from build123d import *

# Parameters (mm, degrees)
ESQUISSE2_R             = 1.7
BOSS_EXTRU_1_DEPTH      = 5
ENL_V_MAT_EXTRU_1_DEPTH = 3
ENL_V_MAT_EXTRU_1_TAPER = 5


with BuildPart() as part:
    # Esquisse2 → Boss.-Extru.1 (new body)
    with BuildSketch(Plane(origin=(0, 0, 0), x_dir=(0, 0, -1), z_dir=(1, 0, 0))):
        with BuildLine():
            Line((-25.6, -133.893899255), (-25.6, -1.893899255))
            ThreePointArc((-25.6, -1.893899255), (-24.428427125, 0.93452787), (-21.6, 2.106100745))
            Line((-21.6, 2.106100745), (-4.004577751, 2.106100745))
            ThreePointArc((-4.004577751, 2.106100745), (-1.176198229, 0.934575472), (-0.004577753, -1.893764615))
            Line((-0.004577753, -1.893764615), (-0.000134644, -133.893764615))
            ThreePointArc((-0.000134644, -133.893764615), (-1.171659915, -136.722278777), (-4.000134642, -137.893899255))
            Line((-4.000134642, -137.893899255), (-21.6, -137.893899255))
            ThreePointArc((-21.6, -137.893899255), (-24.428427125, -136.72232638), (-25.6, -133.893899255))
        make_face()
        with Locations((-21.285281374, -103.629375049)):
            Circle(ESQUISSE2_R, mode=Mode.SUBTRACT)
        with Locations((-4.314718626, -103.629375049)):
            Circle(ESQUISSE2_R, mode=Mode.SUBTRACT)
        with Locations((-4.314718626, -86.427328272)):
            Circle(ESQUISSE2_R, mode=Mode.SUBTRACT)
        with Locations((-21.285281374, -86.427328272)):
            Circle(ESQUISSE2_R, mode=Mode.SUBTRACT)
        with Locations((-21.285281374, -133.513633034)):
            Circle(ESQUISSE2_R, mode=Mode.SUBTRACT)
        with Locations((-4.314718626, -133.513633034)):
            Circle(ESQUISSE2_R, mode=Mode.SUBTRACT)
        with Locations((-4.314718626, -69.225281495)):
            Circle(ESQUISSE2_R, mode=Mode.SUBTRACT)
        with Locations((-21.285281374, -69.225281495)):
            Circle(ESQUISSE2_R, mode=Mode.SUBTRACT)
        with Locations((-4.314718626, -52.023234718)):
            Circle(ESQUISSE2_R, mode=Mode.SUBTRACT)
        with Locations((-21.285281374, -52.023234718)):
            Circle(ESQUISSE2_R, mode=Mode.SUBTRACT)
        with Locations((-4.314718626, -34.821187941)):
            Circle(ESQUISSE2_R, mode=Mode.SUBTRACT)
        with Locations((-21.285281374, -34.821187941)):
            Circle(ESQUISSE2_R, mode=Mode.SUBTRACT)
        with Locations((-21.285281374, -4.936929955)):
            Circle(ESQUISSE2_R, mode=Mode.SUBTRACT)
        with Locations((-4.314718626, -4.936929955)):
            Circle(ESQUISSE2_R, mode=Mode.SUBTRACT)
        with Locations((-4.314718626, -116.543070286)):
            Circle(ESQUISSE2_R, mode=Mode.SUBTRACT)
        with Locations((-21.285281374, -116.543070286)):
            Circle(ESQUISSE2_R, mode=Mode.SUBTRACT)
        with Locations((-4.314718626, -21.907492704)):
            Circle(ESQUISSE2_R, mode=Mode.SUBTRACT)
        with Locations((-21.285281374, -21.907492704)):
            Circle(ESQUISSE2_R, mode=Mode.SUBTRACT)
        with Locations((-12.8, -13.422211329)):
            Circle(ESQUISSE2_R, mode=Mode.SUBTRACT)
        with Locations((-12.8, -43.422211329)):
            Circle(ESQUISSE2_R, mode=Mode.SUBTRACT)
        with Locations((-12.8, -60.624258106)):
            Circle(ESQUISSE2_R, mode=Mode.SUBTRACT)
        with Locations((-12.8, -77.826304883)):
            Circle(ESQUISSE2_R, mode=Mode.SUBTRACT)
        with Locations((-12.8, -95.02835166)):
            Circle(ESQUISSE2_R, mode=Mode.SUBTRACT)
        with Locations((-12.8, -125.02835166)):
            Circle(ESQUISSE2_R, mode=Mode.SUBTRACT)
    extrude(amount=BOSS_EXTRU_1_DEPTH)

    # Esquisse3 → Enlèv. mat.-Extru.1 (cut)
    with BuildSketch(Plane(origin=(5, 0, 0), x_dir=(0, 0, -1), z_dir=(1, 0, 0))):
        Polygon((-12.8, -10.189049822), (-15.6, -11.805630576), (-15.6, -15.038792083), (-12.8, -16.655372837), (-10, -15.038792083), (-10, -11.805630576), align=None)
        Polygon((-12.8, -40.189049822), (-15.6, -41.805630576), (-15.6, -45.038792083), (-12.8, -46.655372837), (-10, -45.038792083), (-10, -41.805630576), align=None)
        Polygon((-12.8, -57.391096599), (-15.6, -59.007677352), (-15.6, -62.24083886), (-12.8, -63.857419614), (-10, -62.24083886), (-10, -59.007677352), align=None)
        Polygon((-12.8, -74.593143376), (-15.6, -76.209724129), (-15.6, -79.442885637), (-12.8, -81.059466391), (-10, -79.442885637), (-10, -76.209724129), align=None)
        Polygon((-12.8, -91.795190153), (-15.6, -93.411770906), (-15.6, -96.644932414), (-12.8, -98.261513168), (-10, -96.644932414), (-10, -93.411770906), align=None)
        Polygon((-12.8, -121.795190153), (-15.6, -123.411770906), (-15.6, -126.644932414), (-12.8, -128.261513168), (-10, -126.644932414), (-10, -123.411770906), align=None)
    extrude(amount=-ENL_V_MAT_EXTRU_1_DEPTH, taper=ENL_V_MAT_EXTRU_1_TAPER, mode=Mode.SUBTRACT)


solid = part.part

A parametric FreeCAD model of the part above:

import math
import FreeCAD as App
import Part
import Sketcher

V = App.Vector
Q = App.Units.Quantity

doc = App.newDocument("Part")
params = doc.addObject("Spreadsheet::Sheet", "Params")
for row, (alias, value) in enumerate([
    ("sketch1_radius", "4 mm"),
    ("sketch1_diameter", "3.4 mm"),
    ("sketch1_width", "132 mm"),
    ("pad1_length", "5 mm"),
    ("pocket1_length", "3 mm"),
    ("pocket1_taper", "-5 deg"),
], start=1):
    params.set(f"A{row}", alias)
    params.set(f"B{row}", "=" + value)
    params.setAlias(f"B{row}", alias)

body = doc.addObject("PartDesign::Body", "Body")

# Sketch on YZ plane
sketch1 = doc.addObject("Sketcher::SketchObject", "Sketch")
body.addObject(sketch1)
sketch1.AttachmentSupport = (doc.YZ_Plane, [""])
sketch1.MapMode = "FlatFace"
sketch1.addGeometry([
    Part.LineSegment(V(-1.9, 25.6, 0), V(-133.9, 25.6, 0)),  # 0
    Part.ArcOfCircle(Part.Circle(V(-133.9, 21.6, 0), V(0, 0, 1), 4), math.radians(90), math.radians(180)),  # 1
    Part.LineSegment(V(-137.9, 21.6, 0), V(-137.9, 4, 0)),  # 2
    Part.ArcOfCircle(Part.Circle(V(-133.9, 4, 0), V(0, 0, 1), 4), math.radians(180), math.radians(270)),  # 3
    Part.LineSegment(V(-133.9, 0, 0), V(-1.9, 0, 0)),  # 4
    Part.ArcOfCircle(Part.Circle(V(-1.9, 4, 0), V(0, 0, 1), 4), math.radians(-90), math.radians(0)),  # 5
    Part.LineSegment(V(2.1, 4, 0), V(2.1, 21.6, 0)),  # 6
    Part.ArcOfCircle(Part.Circle(V(-1.9, 21.6, 0), V(0, 0, 1), 4), math.radians(0), math.radians(90)),  # 7
    Part.Circle(V(-133.5, 4.3, 0), V(0, 0, 1), 1.7),  # 8
    Part.Circle(V(-116.5, 4.3, 0), V(0, 0, 1), 1.7),  # 9
    Part.Circle(V(-103.6, 4.3, 0), V(0, 0, 1), 1.7),  # 10
    Part.Circle(V(-86.4, 4.3, 0), V(0, 0, 1), 1.7),  # 11
    Part.Circle(V(-69.2, 4.3, 0), V(0, 0, 1), 1.7),  # 12
    Part.Circle(V(-125, 12.8, 0), V(0, 0, 1), 1.7),  # 13
    Part.Circle(V(-133.5, 21.3, 0), V(0, 0, 1), 1.7),  # 14
    Part.Circle(V(-116.5, 21.3, 0), V(0, 0, 1), 1.7),  # 15
    Part.Circle(V(-103.6, 21.3, 0), V(0, 0, 1), 1.7),  # 16
    Part.Circle(V(-95, 12.8, 0), V(0, 0, 1), 1.7),  # 17
    Part.Circle(V(-77.8, 12.8, 0), V(0, 0, 1), 1.7),  # 18
    Part.Circle(V(-86.4, 21.3, 0), V(0, 0, 1), 1.7),  # 19
    Part.Circle(V(-69.2, 21.3, 0), V(0, 0, 1), 1.7),  # 20
    Part.Circle(V(-52, 4.3, 0), V(0, 0, 1), 1.7),  # 21
    Part.Circle(V(-34.8, 4.3, 0), V(0, 0, 1), 1.7),  # 22
    Part.Circle(V(-21.9, 4.3, 0), V(0, 0, 1), 1.7),  # 23
    Part.Circle(V(-4.9, 4.3, 0), V(0, 0, 1), 1.7),  # 24
    Part.Circle(V(-60.6, 12.8, 0), V(0, 0, 1), 1.7),  # 25
    Part.Circle(V(-43.4, 12.8, 0), V(0, 0, 1), 1.7),  # 26
    Part.Circle(V(-52, 21.3, 0), V(0, 0, 1), 1.7),  # 27
    Part.Circle(V(-13.4, 12.8, 0), V(0, 0, 1), 1.7),  # 28
    Part.Circle(V(-34.8, 21.3, 0), V(0, 0, 1), 1.7),  # 29
    Part.Circle(V(-21.9, 21.3, 0), V(0, 0, 1), 1.7),  # 30
    Part.Circle(V(-4.9, 21.3, 0), V(0, 0, 1), 1.7),  # 31
], False)
sketch1.addConstraint([
    Sketcher.Constraint("Tangent", 0, 2, 1, 1),
    Sketcher.Constraint("Tangent", 1, 2, 2, 1),
    Sketcher.Constraint("Tangent", 2, 2, 3, 1),
    Sketcher.Constraint("Tangent", 3, 2, 4, 1),
    Sketcher.Constraint("Tangent", 4, 2, 5, 1),
    Sketcher.Constraint("Tangent", 5, 2, 6, 1),
    Sketcher.Constraint("Tangent", 6, 2, 7, 1),
    Sketcher.Constraint("Tangent", 7, 2, 0, 1),
    Sketcher.Constraint("Horizontal", 0),
    Sketcher.Constraint("Vertical", 2),
    Sketcher.Constraint("Vertical", 6),
    Sketcher.Constraint("Equal", 1, 3),
    Sketcher.Constraint("Equal", 3, 5),
    Sketcher.Constraint("Equal", 5, 7),
    Sketcher.Constraint("Equal", 8, 9),
    Sketcher.Constraint("Equal", 9, 10),
    Sketcher.Constraint("Equal", 10, 11),
    Sketcher.Constraint("Equal", 11, 12),
    Sketcher.Constraint("Equal", 12, 13),
    Sketcher.Constraint("Equal", 13, 14),
    Sketcher.Constraint("Equal", 14, 15),
    Sketcher.Constraint("Equal", 15, 16),
    Sketcher.Constraint("Equal", 16, 17),
    Sketcher.Constraint("Equal", 17, 18),
    Sketcher.Constraint("Equal", 18, 19),
    Sketcher.Constraint("Equal", 19, 20),
    Sketcher.Constraint("Equal", 20, 21),
    Sketcher.Constraint("Equal", 21, 22),
    Sketcher.Constraint("Equal", 22, 23),
    Sketcher.Constraint("Equal", 23, 24),
    Sketcher.Constraint("Equal", 24, 25),
    Sketcher.Constraint("Equal", 25, 26),
    Sketcher.Constraint("Equal", 26, 27),
    Sketcher.Constraint("Equal", 27, 28),
    Sketcher.Constraint("Equal", 28, 29),
    Sketcher.Constraint("Equal", 29, 30),
    Sketcher.Constraint("Equal", 30, 31),
    Sketcher.Constraint("Horizontal", 8, 3, 9, 3),
    Sketcher.Constraint("Horizontal", 9, 3, 10, 3),
    Sketcher.Constraint("Horizontal", 10, 3, 11, 3),
    Sketcher.Constraint("Horizontal", 11, 3, 12, 3),
    Sketcher.Constraint("Horizontal", 14, 3, 15, 3),
    Sketcher.Constraint("Horizontal", 15, 3, 16, 3),
    Sketcher.Constraint("Horizontal", 13, 3, 17, 3),
    Sketcher.Constraint("Horizontal", 17, 3, 18, 3),
    Sketcher.Constraint("Horizontal", 16, 3, 19, 3),
    Sketcher.Constraint("Horizontal", 19, 3, 20, 3),
    Sketcher.Constraint("Horizontal", 12, 3, 21, 3),
    Sketcher.Constraint("Horizontal", 21, 3, 22, 3),
    Sketcher.Constraint("Horizontal", 22, 3, 23, 3),
    Sketcher.Constraint("Horizontal", 23, 3, 24, 3),
    Sketcher.Constraint("Horizontal", 18, 3, 25, 3),
    Sketcher.Constraint("Horizontal", 25, 3, 26, 3),
    Sketcher.Constraint("Horizontal", 20, 3, 27, 3),
    Sketcher.Constraint("Horizontal", 26, 3, 28, 3),
    Sketcher.Constraint("Horizontal", 27, 3, 29, 3),
    Sketcher.Constraint("Horizontal", 29, 3, 30, 3),
    Sketcher.Constraint("Horizontal", 30, 3, 31, 3),
    Sketcher.Constraint("Vertical", 8, 3, 14, 3),
    Sketcher.Constraint("Vertical", 9, 3, 15, 3),
    Sketcher.Constraint("Vertical", 10, 3, 16, 3),
    Sketcher.Constraint("Vertical", 11, 3, 19, 3),
    Sketcher.Constraint("Vertical", 12, 3, 20, 3),
    Sketcher.Constraint("Vertical", 21, 3, 27, 3),
    Sketcher.Constraint("Vertical", 22, 3, 29, 3),
    Sketcher.Constraint("Vertical", 23, 3, 30, 3),
    Sketcher.Constraint("Vertical", 24, 3, 31, 3),
    Sketcher.Constraint("Radius", 1, Q("4 mm")),
    Sketcher.Constraint("Diameter", 8, Q("3.4 mm")),
    Sketcher.Constraint("DistanceX", 0, 2, 0, 1, Q("132 mm")),
    Sketcher.Constraint("DistanceY", -1, 1, 1, 3, Q("21.6 mm")),
    Sketcher.Constraint("DistanceY", -1, 1, 13, 3, Q("12.8 mm")),
    Sketcher.Constraint("DistanceX", 1, 3, -1, 1, Q("133.893899 mm")),
    Sketcher.Constraint("DistanceY", 2, 2, 2, 1, Q("17.599865 mm")),
    Sketcher.Constraint("DistanceY", 6, 1, 6, 2, Q("17.595422 mm")),
    Sketcher.Constraint("DistanceY", -1, 1, 8, 3, Q("4.314719 mm")),
    Sketcher.Constraint("DistanceX", 9, 3, -1, 1, Q("116.54307 mm")),
    Sketcher.Constraint("DistanceX", 11, 3, -1, 1, Q("86.427328 mm")),
    Sketcher.Constraint("DistanceX", 12, 3, -1, 1, Q("69.225281 mm")),
    Sketcher.Constraint("DistanceX", 13, 3, -1, 1, Q("125.028352 mm")),
    Sketcher.Constraint("DistanceY", -1, 1, 14, 3, Q("21.285281 mm")),
    Sketcher.Constraint("DistanceX", 17, 3, -1, 1, Q("95.028352 mm")),
    Sketcher.Constraint("DistanceX", 24, 3, -1, 1, Q("4.93693 mm")),
    Sketcher.Constraint("DistanceX", 25, 3, -1, 1, Q("60.624258 mm")),
    Sketcher.Constraint("DistanceX", 26, 3, -1, 1, Q("43.422211 mm")),
    Sketcher.Constraint("DistanceX", 28, 3, -1, 1, Q("13.422211 mm")),
    Sketcher.Constraint("DistanceX", 8, 3, 12, 3, Q("64.288352 mm")),
    Sketcher.Constraint("DistanceX", 10, 3, 18, 3, Q("25.80307 mm")),
    Sketcher.Constraint("DistanceX", 18, 3, 21, 3, Q("25.80307 mm")),
    Sketcher.Constraint("DistanceX", 22, 3, 5, 3, Q("32.927289 mm")),
    Sketcher.Constraint("DistanceX", 12, 3, 23, 3, Q("47.317789 mm")),
    Sketcher.Constraint("DistanceX", 10, 3, -1, 1, Q("103.629375 mm")),
])
sketch1.setExpression("Constraints[67]", "Params.sketch1_radius")
sketch1.setExpression("Constraints[68]", "Params.sketch1_diameter")
sketch1.setExpression("Constraints[69]", "Params.sketch1_width")
pad1 = doc.addObject("PartDesign::Pad", "Pad")
body.addObject(pad1)
pad1.Profile = sketch1
pad1.setExpression("Length", "Params.pad1_length")

# Sketch on YZ plane
sketch2 = doc.addObject("Sketcher::SketchObject", "Sketch001")
body.addObject(sketch2)
sketch2.AttachmentSupport = (doc.YZ_Plane, [""])
sketch2.MapMode = "FlatFace"
sketch2.AttachmentOffset = App.Placement(V(0, 0, 5), App.Rotation())
sketch2.addGeometry([
    Part.LineSegment(V(-10.2, 12.8, 0), V(-11.8, 15.6, 0)),  # 0
    Part.LineSegment(V(-11.8, 15.6, 0), V(-15, 15.6, 0)),  # 1
    Part.LineSegment(V(-15, 15.6, 0), V(-16.7, 12.8, 0)),  # 2
    Part.LineSegment(V(-16.7, 12.8, 0), V(-15, 10, 0)),  # 3
    Part.LineSegment(V(-15, 10, 0), V(-11.8, 10, 0)),  # 4
    Part.LineSegment(V(-11.8, 10, 0), V(-10.2, 12.8, 0)),  # 5
    Part.LineSegment(V(-40.2, 12.8, 0), V(-41.8, 15.6, 0)),  # 6
    Part.LineSegment(V(-41.8, 15.6, 0), V(-45, 15.6, 0)),  # 7
    Part.LineSegment(V(-45, 15.6, 0), V(-46.7, 12.8, 0)),  # 8
    Part.LineSegment(V(-46.7, 12.8, 0), V(-45, 10, 0)),  # 9
    Part.LineSegment(V(-45, 10, 0), V(-41.8, 10, 0)),  # 10
    Part.LineSegment(V(-41.8, 10, 0), V(-40.2, 12.8, 0)),  # 11
    Part.LineSegment(V(-57.4, 12.8, 0), V(-59, 15.6, 0)),  # 12
    Part.LineSegment(V(-59, 15.6, 0), V(-62.2, 15.6, 0)),  # 13
    Part.LineSegment(V(-62.2, 15.6, 0), V(-63.9, 12.8, 0)),  # 14
    Part.LineSegment(V(-63.9, 12.8, 0), V(-62.2, 10, 0)),  # 15
    Part.LineSegment(V(-62.2, 10, 0), V(-59, 10, 0)),  # 16
    Part.LineSegment(V(-59, 10, 0), V(-57.4, 12.8, 0)),  # 17
    Part.LineSegment(V(-74.6, 12.8, 0), V(-76.2, 15.6, 0)),  # 18
    Part.LineSegment(V(-76.2, 15.6, 0), V(-79.4, 15.6, 0)),  # 19
    Part.LineSegment(V(-79.4, 15.6, 0), V(-81.1, 12.8, 0)),  # 20
    Part.LineSegment(V(-81.1, 12.8, 0), V(-79.4, 10, 0)),  # 21
    Part.LineSegment(V(-79.4, 10, 0), V(-76.2, 10, 0)),  # 22
    Part.LineSegment(V(-76.2, 10, 0), V(-74.6, 12.8, 0)),  # 23
    Part.LineSegment(V(-91.8, 12.8, 0), V(-93.4, 15.6, 0)),  # 24
    Part.LineSegment(V(-93.4, 15.6, 0), V(-96.6, 15.6, 0)),  # 25
    Part.LineSegment(V(-96.6, 15.6, 0), V(-98.3, 12.8, 0)),  # 26
    Part.LineSegment(V(-98.3, 12.8, 0), V(-96.6, 10, 0)),  # 27
    Part.LineSegment(V(-96.6, 10, 0), V(-93.4, 10, 0)),  # 28
    Part.LineSegment(V(-93.4, 10, 0), V(-91.8, 12.8, 0)),  # 29
    Part.LineSegment(V(-121.8, 12.8, 0), V(-123.4, 15.6, 0)),  # 30
    Part.LineSegment(V(-123.4, 15.6, 0), V(-126.6, 15.6, 0)),  # 31
    Part.LineSegment(V(-126.6, 15.6, 0), V(-128.3, 12.8, 0)),  # 32
    Part.LineSegment(V(-128.3, 12.8, 0), V(-126.6, 10, 0)),  # 33
    Part.LineSegment(V(-126.6, 10, 0), V(-123.4, 10, 0)),  # 34
    Part.LineSegment(V(-123.4, 10, 0), V(-121.8, 12.8, 0)),  # 35
], False)
sketch2.addConstraint([
    Sketcher.Constraint("Coincident", 0, 2, 1, 1),
    Sketcher.Constraint("Coincident", 1, 2, 2, 1),
    Sketcher.Constraint("Coincident", 2, 2, 3, 1),
    Sketcher.Constraint("Coincident", 3, 2, 4, 1),
    Sketcher.Constraint("Coincident", 4, 2, 5, 1),
    Sketcher.Constraint("Coincident", 5, 2, 0, 1),
    Sketcher.Constraint("Coincident", 6, 2, 7, 1),
    Sketcher.Constraint("Coincident", 7, 2, 8, 1),
    Sketcher.Constraint("Coincident", 8, 2, 9, 1),
    Sketcher.Constraint("Coincident", 9, 2, 10, 1),
    Sketcher.Constraint("Coincident", 10, 2, 11, 1),
    Sketcher.Constraint("Coincident", 11, 2, 6, 1),
    Sketcher.Constraint("Coincident", 12, 2, 13, 1),
    Sketcher.Constraint("Coincident", 13, 2, 14, 1),
    Sketcher.Constraint("Coincident", 14, 2, 15, 1),
    Sketcher.Constraint("Coincident", 15, 2, 16, 1),
    Sketcher.Constraint("Coincident", 16, 2, 17, 1),
    Sketcher.Constraint("Coincident", 17, 2, 12, 1),
    Sketcher.Constraint("Coincident", 18, 2, 19, 1),
    Sketcher.Constraint("Coincident", 19, 2, 20, 1),
    Sketcher.Constraint("Coincident", 20, 2, 21, 1),
    Sketcher.Constraint("Coincident", 21, 2, 22, 1),
    Sketcher.Constraint("Coincident", 22, 2, 23, 1),
    Sketcher.Constraint("Coincident", 23, 2, 18, 1),
    Sketcher.Constraint("Coincident", 24, 2, 25, 1),
    Sketcher.Constraint("Coincident", 25, 2, 26, 1),
    Sketcher.Constraint("Coincident", 26, 2, 27, 1),
    Sketcher.Constraint("Coincident", 27, 2, 28, 1),
    Sketcher.Constraint("Coincident", 28, 2, 29, 1),
    Sketcher.Constraint("Coincident", 29, 2, 24, 1),
    Sketcher.Constraint("Coincident", 30, 2, 31, 1),
    Sketcher.Constraint("Coincident", 31, 2, 32, 1),
    Sketcher.Constraint("Coincident", 32, 2, 33, 1),
    Sketcher.Constraint("Coincident", 33, 2, 34, 1),
    Sketcher.Constraint("Coincident", 34, 2, 35, 1),
    Sketcher.Constraint("Coincident", 35, 2, 30, 1),
    Sketcher.Constraint("Horizontal", 1),
    Sketcher.Constraint("Horizontal", 4),
    Sketcher.Constraint("Horizontal", 7),
    Sketcher.Constraint("Horizontal", 10),
    Sketcher.Constraint("Horizontal", 13),
    Sketcher.Constraint("Horizontal", 16),
    Sketcher.Constraint("Horizontal", 19),
    Sketcher.Constraint("Horizontal", 22),
    Sketcher.Constraint("Horizontal", 25),
    Sketcher.Constraint("Horizontal", 28),
    Sketcher.Constraint("Horizontal", 31),
    Sketcher.Constraint("Horizontal", 34),
    Sketcher.Constraint("Parallel", 0, 3),
    Sketcher.Constraint("Parallel", 2, 5),
    Sketcher.Constraint("Parallel", 3, 6),
    Sketcher.Constraint("Parallel", 5, 8),
    Sketcher.Constraint("Parallel", 6, 9),
    Sketcher.Constraint("Parallel", 8, 11),
    Sketcher.Constraint("Parallel", 9, 12),
    Sketcher.Constraint("Parallel", 11, 14),
    Sketcher.Constraint("Parallel", 12, 15),
    Sketcher.Constraint("Parallel", 14, 17),
    Sketcher.Constraint("Parallel", 15, 18),
    Sketcher.Constraint("Parallel", 17, 20),
    Sketcher.Constraint("Parallel", 18, 21),
    Sketcher.Constraint("Parallel", 20, 23),
    Sketcher.Constraint("Parallel", 21, 24),
    Sketcher.Constraint("Parallel", 23, 26),
    Sketcher.Constraint("Parallel", 24, 27),
    Sketcher.Constraint("Parallel", 26, 29),
    Sketcher.Constraint("Parallel", 27, 30),
    Sketcher.Constraint("Parallel", 29, 32),
    Sketcher.Constraint("Parallel", 30, 33),
    Sketcher.Constraint("Parallel", 32, 35),
    Sketcher.Constraint("Horizontal", 2, 2, 5, 2),
    Sketcher.Constraint("Horizontal", 1, 2, 6, 2),
    Sketcher.Constraint("Horizontal", 5, 2, 8, 2),
    Sketcher.Constraint("Horizontal", 4, 2, 9, 2),
    Sketcher.Constraint("Horizontal", 8, 2, 11, 2),
    Sketcher.Constraint("Horizontal", 7, 2, 12, 2),
    Sketcher.Constraint("Horizontal", 11, 2, 14, 2),
    Sketcher.Constraint("Horizontal", 10, 2, 15, 2),
    Sketcher.Constraint("Horizontal", 14, 2, 17, 2),
    Sketcher.Constraint("Horizontal", 13, 2, 18, 2),
    Sketcher.Constraint("Horizontal", 17, 2, 20, 2),
    Sketcher.Constraint("Horizontal", 16, 2, 21, 2),
    Sketcher.Constraint("Horizontal", 20, 2, 23, 2),
    Sketcher.Constraint("Horizontal", 19, 2, 24, 2),
    Sketcher.Constraint("Horizontal", 23, 2, 26, 2),
    Sketcher.Constraint("Horizontal", 22, 2, 27, 2),
    Sketcher.Constraint("Horizontal", 26, 2, 29, 2),
    Sketcher.Constraint("Horizontal", 25, 2, 30, 2),
    Sketcher.Constraint("Horizontal", 29, 2, 32, 2),
    Sketcher.Constraint("Horizontal", 28, 2, 33, 2),
    Sketcher.Constraint("Horizontal", 32, 2, 35, 2),
    Sketcher.Constraint("Vertical", 1, 2, 3, 2),
    Sketcher.Constraint("Vertical", 0, 2, 4, 2),
    Sketcher.Constraint("Equal", 4, 7),
    Sketcher.Constraint("Equal", 10, 13),
    Sketcher.Constraint("Equal", 16, 19),
    Sketcher.Constraint("Equal", 22, 25),
    Sketcher.Constraint("Equal", 28, 31),
    Sketcher.Constraint("Angle", 0, Q("120 deg")),
    Sketcher.Constraint("DistanceY", -1, 1, 3, 2, Q("10 mm")),
    Sketcher.Constraint("DistanceX", 6, 2, 0, 2, Q("30 mm")),
    Sketcher.Constraint("DistanceX", 30, 2, 24, 2, Q("30 mm")),
    Sketcher.Constraint("DistanceY", -1, 1, 0, 2, Q("15.6 mm")),
    Sketcher.Constraint("DistanceX", 1, 2, 1, 1, Q("3.233162 mm")),
    Sketcher.Constraint("DistanceX", 0, 2, -1, 1, Q("11.805631 mm")),
    Sketcher.Constraint("DistanceX", 13, 2, -1, 1, Q("62.240839 mm")),
    Sketcher.Constraint("DistanceX", 24, 2, -1, 1, Q("93.411771 mm")),
    Sketcher.Constraint("DistanceX", 19, 2, 12, 2, Q("20.435208 mm")),
])
pocket1 = doc.addObject("PartDesign::Pocket", "Pocket")
body.addObject(pocket1)
pocket1.Profile = sketch2
pocket1.setExpression("Length", "Params.pocket1_length")
pocket1.setExpression("TaperAngle", "Params.pocket1_taper")

doc.recompute()
